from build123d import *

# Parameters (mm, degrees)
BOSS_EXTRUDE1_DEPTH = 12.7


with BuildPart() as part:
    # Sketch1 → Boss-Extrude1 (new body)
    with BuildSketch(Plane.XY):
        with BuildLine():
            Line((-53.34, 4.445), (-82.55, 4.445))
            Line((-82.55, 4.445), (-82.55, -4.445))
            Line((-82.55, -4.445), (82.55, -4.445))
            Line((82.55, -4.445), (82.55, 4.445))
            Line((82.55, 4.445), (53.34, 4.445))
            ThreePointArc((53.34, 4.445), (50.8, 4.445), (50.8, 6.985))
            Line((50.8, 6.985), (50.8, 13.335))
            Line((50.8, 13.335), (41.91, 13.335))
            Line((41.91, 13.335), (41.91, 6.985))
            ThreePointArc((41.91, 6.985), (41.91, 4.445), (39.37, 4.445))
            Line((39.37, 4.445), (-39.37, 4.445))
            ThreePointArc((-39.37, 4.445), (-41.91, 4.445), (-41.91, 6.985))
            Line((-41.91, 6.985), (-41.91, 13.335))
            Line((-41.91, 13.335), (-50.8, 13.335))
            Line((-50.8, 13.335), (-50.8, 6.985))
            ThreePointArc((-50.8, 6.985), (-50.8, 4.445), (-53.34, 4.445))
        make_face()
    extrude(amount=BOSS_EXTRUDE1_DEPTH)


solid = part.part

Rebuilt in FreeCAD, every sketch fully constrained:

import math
import FreeCAD as App
import Part
import Sketcher

V = App.Vector
Q = App.Units.Quantity

doc = App.newDocument("Part")
params = doc.addObject("Spreadsheet::Sheet", "Params")
for row, (alias, value) in enumerate([
    ("sketch1_width", "6.5 in"),
    ("sketch1_width2", "3.1 in"),
    ("sketch1_width3", "1.15 in"),
    ("sketch1_height", "0.25 in"),
    ("pad1_length", "0.5 in"),
], start=1):
    params.set(f"A{row}", alias)
    params.set(f"B{row}", "=" + value)
    params.setAlias(f"B{row}", alias)

body = doc.addObject("PartDesign::Body", "Body")

sketch1 = body.newObject("Sketcher::SketchObject", "Sketch")
sketch1.AttachmentSupport = (doc.getObject("XY_Plane"), [""])
sketch1.MapMode = "FlatFace"
sketch1.addGeometry(Part.LineSegment(V(-53.3, 4.4, 0), V(-82.5, 4.4, 0)), False)
sketch1.addGeometry(Part.LineSegment(V(-82.5, 4.4, 0), V(-82.5, -4.4, 0)), False)
sketch1.addGeometry(Part.LineSegment(V(-82.5, -4.4, 0), V(82.5, -4.4, 0)), False)
sketch1.addGeometry(Part.LineSegment(V(82.5, -4.4, 0), V(82.5, 4.4, 0)), False)
sketch1.addGeometry(Part.LineSegment(V(82.5, 4.4, 0), V(53.3, 4.4, 0)), False)
sketch1.addGeometry(Part.ArcOfCircle(Part.Circle(V(52.1, 5.7, 0), V(0, 0, 1), 1.8), math.radians(135), math.radians(315)), False)
sketch1.addGeometry(Part.LineSegment(V(50.8, 7, 0), V(50.8, 13.3, 0)), False)
sketch1.addGeometry(Part.LineSegment(V(50.8, 13.3, 0), V(41.9, 13.3, 0)), False)
sketch1.addGeometry(Part.LineSegment(V(41.9, 13.3, 0), V(41.9, 7, 0)), False)
sketch1.addGeometry(Part.ArcOfCircle(Part.Circle(V(40.6, 5.7, 0), V(0, 0, 1), 1.8), math.radians(-135), math.radians(45)), False)
sketch1.addGeometry(Part.LineSegment(V(39.4, 4.4, 0), V(-39.4, 4.4, 0)), False)
sketch1.addGeometry(Part.ArcOfCircle(Part.Circle(V(-40.6, 5.7, 0), V(0, 0, 1), 1.8), math.radians(135), math.radians(315)), False)
sketch1.addGeometry(Part.LineSegment(V(-41.9, 7, 0), V(-41.9, 13.3, 0)), False)
sketch1.addGeometry(Part.LineSegment(V(-41.9, 13.3, 0), V(-50.8, 13.3, 0)), False)
sketch1.addGeometry(Part.LineSegment(V(-50.8, 13.3, 0), V(-50.8, 7, 0)), False)
sketch1.addGeometry(Part.ArcOfCircle(Part.Circle(V(-52.1, 5.7, 0), V(0, 0, 1), 1.8), math.radians(-135), math.radians(45)), False)
sketch1.addConstraint(Sketcher.Constraint("Coincident", 0, 2, 1, 1))
sketch1.addConstraint(Sketcher.Constraint("Coincident", 1, 2, 2, 1))
sketch1.addConstraint(Sketcher.Constraint("Coincident", 2, 2, 3, 1))
sketch1.addConstraint(Sketcher.Constraint("Coincident", 3, 2, 4, 1))
sketch1.addConstraint(Sketcher.Constraint("Coincident", 4, 2, 5, 2))
sketch1.addConstraint(Sketcher.Constraint("Coincident", 5, 1, 6, 1))
sketch1.addConstraint(Sketcher.Constraint("Coincident", 6, 2, 7, 1))
sketch1.addConstraint(Sketcher.Constraint("Coincident", 7, 2, 8, 1))
sketch1.addConstraint(Sketcher.Constraint("Coincident", 8, 2, 9, 2))
sketch1.addConstraint(Sketcher.Constraint("Coincident", 9, 1, 10, 1))
sketch1.addConstraint(Sketcher.Constraint("Coincident", 10, 2, 11, 2))
sketch1.addConstraint(Sketcher.Constraint("Coincident", 11, 1, 12, 1))
sketch1.addConstraint(Sketcher.Constraint("Coincident", 12, 2, 13, 1))
sketch1.addConstraint(Sketcher.Constraint("Coincident", 13, 2, 14, 1))
sketch1.addConstraint(Sketcher.Constraint("Coincident", 14, 2, 15, 2))
sketch1.addConstraint(Sketcher.Constraint("Coincident", 15, 1, 0, 1))
sketch1.addConstraint(Sketcher.Constraint("Horizontal", 0))
sketch1.addConstraint(Sketcher.Constraint("Vertical", 1))
sketch1.addConstraint(Sketcher.Constraint("Horizontal", 2))
sketch1.addConstraint(Sketcher.Constraint("Vertical", 3))
sketch1.addConstraint(Sketcher.Constraint("Horizontal", 4))
sketch1.addConstraint(Sketcher.Constraint("Vertical", 6))
sketch1.addConstraint(Sketcher.Constraint("Horizontal", 7))
sketch1.addConstraint(Sketcher.Constraint("Vertical", 8))
sketch1.addConstraint(Sketcher.Constraint("Horizontal", 10))
sketch1.addConstraint(Sketcher.Constraint("Vertical", 12))
sketch1.addConstraint(Sketcher.Constraint("Horizontal", 13))
sketch1.addConstraint(Sketcher.Constraint("Vertical", 14))
sketch1.addConstraint(Sketcher.Constraint("Equal", 5, 9))
sketch1.addConstraint(Sketcher.Constraint("Equal", 9, 11))
sketch1.addConstraint(Sketcher.Constraint("Equal", 11, 15))
sketch1.addConstraint(Sketcher.Constraint("Symmetric", 0, 2, 2, 2, -1, 1))
sketch1.addConstraint(Sketcher.Constraint("Symmetric", 9, 3, 11, 3, -2))
sketch1.addConstraint(Sketcher.Constraint("Symmetric", 5, 3, 15, 3, -2))
sketch1.addConstraint(Sketcher.Constraint("Symmetric", 7, 2, 12, 2, -2))
sketch1.addConstraint(Sketcher.Constraint("Horizontal", 5, 3, 9, 3))
sketch1.addConstraint(Sketcher.Constraint("Horizontal", 0, 2, 3, 2))
sketch1.addConstraint(Sketcher.Constraint("Horizontal", 5, 1, 8, 2))
sketch1.addConstraint(Sketcher.Constraint("Horizontal", 4, 2, 9, 1))
sketch1.addConstraint(Sketcher.Constraint("Horizontal", 11, 1, 14, 2))
sketch1.addConstraint(Sketcher.Constraint("Equal", 13, 1))
sketch1.addConstraint(Sketcher.Constraint("DistanceX", 2, 1, 2, 2, Q("6.5 in")))
sketch1.addConstraint(Sketcher.Constraint("DistanceX", 10, 2, 10, 1, Q("3.1 in")))
sketch1.addConstraint(Sketcher.Constraint("DistanceX", -1, 1, 5, 1, Q("2 in")))
sketch1.addConstraint(Sketcher.Constraint("DistanceX", 0, 2, 0, 1, Q("1.15 in")))
sketch1.addConstraint(Sketcher.Constraint("DistanceY", 6, 1, 6, 2, Q("0.25 in")))
sketch1.addConstraint(Sketcher.Constraint("DistanceX", -1, 1, 9, 3, Q("1.6 in")))
sketch1.addConstraint(Sketcher.Constraint("DistanceY", 1, 2, 15, 3, Q("0.4 in")))
sketch1.setExpression("Constraints[41]", "Params.sketch1_width")
sketch1.setExpression("Constraints[42]", "Params.sketch1_width2")
sketch1.setExpression("Constraints[44]", "Params.sketch1_width3")
sketch1.setExpression("Constraints[45]", "Params.sketch1_height")
pad1 = body.newObject("PartDesign::Pad", "Pad")
pad1.Profile = sketch1
pad1.setExpression("Length", "Params.pad1_length")

doc.recompute()
